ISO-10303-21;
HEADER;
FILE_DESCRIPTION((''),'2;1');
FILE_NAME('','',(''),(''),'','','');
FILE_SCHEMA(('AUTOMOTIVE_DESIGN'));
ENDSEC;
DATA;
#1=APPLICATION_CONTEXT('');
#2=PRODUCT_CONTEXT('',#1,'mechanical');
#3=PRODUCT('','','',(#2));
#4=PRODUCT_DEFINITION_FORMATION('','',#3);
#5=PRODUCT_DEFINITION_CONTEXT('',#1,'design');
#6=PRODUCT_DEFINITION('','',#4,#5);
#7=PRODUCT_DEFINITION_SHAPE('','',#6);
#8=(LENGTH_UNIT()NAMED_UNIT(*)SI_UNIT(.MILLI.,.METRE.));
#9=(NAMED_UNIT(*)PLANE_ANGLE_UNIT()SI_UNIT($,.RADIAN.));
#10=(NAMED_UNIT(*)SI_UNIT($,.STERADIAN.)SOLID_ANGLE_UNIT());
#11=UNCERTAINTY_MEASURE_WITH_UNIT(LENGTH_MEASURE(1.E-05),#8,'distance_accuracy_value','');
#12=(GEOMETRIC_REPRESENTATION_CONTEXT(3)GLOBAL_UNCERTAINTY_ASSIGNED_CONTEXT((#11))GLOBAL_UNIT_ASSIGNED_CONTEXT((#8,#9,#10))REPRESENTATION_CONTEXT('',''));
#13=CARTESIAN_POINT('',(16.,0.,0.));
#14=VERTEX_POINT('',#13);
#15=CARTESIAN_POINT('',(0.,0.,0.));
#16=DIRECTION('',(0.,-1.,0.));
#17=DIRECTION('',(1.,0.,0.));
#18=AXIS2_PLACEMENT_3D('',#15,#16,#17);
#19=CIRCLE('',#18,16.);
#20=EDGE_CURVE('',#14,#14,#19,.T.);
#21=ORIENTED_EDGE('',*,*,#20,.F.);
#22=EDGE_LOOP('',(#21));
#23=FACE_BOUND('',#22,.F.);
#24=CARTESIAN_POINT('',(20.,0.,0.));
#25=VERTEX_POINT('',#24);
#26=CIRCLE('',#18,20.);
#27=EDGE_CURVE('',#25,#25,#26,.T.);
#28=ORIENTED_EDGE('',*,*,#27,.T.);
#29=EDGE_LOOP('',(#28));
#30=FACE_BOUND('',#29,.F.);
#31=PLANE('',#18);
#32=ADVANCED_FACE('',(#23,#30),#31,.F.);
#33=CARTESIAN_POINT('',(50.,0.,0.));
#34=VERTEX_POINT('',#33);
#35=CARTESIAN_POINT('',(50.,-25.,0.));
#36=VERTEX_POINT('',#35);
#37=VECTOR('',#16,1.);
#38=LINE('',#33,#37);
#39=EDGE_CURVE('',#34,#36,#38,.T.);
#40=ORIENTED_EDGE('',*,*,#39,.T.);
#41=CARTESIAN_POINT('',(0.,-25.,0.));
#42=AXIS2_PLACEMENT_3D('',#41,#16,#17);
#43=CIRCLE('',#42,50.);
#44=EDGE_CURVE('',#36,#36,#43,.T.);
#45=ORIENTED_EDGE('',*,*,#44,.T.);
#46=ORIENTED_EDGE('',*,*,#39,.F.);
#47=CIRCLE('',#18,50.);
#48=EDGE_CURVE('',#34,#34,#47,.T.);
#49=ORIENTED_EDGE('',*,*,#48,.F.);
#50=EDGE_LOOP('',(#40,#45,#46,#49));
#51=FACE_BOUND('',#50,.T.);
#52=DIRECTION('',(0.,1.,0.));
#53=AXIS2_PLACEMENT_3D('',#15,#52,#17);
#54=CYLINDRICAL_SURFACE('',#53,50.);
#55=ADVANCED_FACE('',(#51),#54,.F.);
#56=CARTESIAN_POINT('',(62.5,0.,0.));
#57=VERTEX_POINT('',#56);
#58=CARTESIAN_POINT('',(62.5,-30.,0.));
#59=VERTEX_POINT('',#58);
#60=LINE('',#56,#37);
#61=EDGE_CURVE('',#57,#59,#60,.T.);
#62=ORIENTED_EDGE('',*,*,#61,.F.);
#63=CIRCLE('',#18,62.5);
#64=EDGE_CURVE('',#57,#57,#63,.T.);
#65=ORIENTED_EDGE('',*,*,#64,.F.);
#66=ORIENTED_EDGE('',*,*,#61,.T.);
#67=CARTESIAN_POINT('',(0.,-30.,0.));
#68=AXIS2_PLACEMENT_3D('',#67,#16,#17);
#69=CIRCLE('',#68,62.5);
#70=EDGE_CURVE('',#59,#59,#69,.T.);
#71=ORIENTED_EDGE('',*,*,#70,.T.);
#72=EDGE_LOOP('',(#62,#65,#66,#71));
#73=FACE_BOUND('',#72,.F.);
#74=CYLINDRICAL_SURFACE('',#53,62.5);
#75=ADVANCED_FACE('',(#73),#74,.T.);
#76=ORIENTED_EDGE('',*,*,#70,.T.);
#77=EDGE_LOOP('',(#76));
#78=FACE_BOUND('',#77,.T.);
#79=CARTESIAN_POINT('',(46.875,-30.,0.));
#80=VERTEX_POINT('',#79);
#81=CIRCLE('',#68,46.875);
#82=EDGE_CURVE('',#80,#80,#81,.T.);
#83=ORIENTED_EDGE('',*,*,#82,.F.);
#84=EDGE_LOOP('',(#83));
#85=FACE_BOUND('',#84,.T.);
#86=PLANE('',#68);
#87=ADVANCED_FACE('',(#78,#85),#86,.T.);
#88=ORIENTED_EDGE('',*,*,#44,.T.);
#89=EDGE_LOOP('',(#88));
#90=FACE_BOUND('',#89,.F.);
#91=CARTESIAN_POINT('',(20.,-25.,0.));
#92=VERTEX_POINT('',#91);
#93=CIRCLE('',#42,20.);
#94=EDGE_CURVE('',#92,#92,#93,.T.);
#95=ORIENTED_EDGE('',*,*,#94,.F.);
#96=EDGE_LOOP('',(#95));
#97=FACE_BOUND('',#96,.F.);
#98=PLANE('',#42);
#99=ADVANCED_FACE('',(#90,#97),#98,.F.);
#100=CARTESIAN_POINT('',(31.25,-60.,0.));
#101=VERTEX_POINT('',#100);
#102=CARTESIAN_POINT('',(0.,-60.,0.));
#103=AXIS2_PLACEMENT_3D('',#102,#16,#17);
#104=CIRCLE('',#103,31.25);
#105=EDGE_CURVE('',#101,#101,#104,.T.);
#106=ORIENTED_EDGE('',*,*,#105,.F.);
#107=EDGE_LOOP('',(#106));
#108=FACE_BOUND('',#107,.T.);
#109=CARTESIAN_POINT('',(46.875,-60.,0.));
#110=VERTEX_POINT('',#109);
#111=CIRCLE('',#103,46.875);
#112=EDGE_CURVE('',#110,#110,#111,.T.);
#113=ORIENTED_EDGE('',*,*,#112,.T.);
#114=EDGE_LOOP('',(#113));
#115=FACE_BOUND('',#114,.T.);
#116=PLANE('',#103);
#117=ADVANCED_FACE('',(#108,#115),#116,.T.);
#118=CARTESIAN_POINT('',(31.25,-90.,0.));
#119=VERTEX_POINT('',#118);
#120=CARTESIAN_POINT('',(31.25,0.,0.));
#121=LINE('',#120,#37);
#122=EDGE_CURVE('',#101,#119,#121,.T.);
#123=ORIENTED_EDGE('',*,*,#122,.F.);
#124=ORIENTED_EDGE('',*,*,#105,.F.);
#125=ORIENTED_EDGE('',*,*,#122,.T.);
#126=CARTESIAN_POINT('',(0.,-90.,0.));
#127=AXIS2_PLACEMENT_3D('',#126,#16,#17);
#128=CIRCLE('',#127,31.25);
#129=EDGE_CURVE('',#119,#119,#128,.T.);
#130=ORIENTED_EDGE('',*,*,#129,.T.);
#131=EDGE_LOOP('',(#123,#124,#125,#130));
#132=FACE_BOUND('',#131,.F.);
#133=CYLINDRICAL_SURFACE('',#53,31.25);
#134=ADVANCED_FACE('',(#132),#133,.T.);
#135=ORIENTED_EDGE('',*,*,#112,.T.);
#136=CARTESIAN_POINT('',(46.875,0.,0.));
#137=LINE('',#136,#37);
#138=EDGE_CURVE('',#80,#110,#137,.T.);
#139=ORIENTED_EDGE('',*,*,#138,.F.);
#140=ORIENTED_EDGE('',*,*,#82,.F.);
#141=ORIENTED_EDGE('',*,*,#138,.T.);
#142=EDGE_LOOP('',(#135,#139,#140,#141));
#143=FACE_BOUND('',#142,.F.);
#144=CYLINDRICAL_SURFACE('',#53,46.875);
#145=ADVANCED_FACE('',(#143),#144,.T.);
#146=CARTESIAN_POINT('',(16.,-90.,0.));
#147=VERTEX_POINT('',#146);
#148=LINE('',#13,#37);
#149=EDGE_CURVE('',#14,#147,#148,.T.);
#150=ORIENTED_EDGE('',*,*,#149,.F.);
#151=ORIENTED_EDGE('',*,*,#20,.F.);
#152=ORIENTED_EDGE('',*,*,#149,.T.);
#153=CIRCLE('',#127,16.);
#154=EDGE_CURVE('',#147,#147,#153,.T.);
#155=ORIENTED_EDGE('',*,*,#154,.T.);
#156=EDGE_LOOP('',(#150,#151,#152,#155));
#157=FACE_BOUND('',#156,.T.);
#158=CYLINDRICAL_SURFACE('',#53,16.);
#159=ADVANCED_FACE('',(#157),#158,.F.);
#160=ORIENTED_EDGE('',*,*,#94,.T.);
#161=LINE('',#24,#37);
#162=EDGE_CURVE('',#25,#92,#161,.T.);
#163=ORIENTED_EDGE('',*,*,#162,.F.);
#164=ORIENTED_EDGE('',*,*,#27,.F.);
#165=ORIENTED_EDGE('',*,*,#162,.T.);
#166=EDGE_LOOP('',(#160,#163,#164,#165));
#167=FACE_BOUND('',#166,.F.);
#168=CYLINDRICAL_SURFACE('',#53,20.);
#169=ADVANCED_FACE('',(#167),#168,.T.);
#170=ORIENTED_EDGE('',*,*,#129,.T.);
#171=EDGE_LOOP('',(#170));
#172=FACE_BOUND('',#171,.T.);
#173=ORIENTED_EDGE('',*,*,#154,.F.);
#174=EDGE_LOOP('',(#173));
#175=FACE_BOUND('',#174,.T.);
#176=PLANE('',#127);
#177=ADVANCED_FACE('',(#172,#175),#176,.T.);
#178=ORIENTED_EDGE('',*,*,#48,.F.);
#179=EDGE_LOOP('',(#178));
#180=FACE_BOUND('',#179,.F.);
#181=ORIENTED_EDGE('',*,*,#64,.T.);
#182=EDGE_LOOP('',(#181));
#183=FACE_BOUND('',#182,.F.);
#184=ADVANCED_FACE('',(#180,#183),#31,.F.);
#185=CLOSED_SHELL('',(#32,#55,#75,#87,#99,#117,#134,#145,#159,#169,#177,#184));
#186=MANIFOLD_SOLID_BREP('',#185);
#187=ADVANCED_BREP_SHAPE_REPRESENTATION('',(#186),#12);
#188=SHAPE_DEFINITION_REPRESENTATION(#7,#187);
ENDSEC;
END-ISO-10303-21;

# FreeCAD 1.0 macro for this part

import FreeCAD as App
import Part
import Sketcher
from FreeCAD import Vector
Q = App.Units.Quantity

doc = App.newDocument("Part")
body = doc.addObject("PartDesign::Body", "Body")

# Sketch on XZ plane
sketch1 = body.newObject("Sketcher::SketchObject", "Sketch")
sketch1.AttachmentSupport = (doc.getObject("XZ_Plane"), [""])
sketch1.MapMode = "FlatFace"
sketch1.addGeometry(Part.Circle(Vector(0, 0, 0), Vector(0, 0, 1), 31), False)
sketch1.addGeometry(Part.Circle(Vector(0, 0, 0), Vector(0, 0, 1), 16), False)
sketch1.addConstraint(Sketcher.Constraint("Coincident", 0, 3, -1, 1))
sketch1.addConstraint(Sketcher.Constraint("Coincident", 1, 3, -1, 1))
sketch1.addConstraint(Sketcher.Constraint("Diameter", 1, Q("32 mm")))
sketch1.addConstraint(Sketcher.Constraint("Diameter", 0, Q("62.5 mm")))
pad1 = body.newObject("PartDesign::Pad", "Pad")
pad1.Profile = sketch1
pad1.Length = 90

# Sketch on XZ plane
sketch2 = body.newObject("Sketcher::SketchObject", "Sketch001")
sketch2.AttachmentSupport = (doc.getObject("XZ_Plane"), [""])
sketch2.MapMode = "FlatFace"
sketch2.addGeometry(Part.Circle(Vector(0, 0, 0), Vector(0, 0, 1), 47), False)
sketch2.addGeometry(Part.Circle(Vector(0, 0, 0), Vector(0, 0, 1), 31), False)
sketch2.addConstraint(Sketcher.Constraint("Coincident", 0, 3, -1, 1))
sketch2.addConstraint(Sketcher.Constraint("Coincident", 1, 3, -1, 1))
sketch2.addConstraint(Sketcher.Constraint("Diameter", 1, Q("62.5 mm")))
sketch2.addConstraint(Sketcher.Constraint("Diameter", 0, Q("93.75 mm")))
pad2 = body.newObject("PartDesign::Pad", "Pad001")
pad2.Profile = sketch2
pad2.Length = 60

# Sketch on XZ plane
sketch3 = body.newObject("Sketcher::SketchObject", "Sketch002")
sketch3.AttachmentSupport = (doc.getObject("XZ_Plane"), [""])
sketch3.MapMode = "FlatFace"
sketch3.addGeometry(Part.Circle(Vector(0, 0, 0), Vector(0, 0, 1), 62), False)
sketch3.addGeometry(Part.Circle(Vector(0, 0, 0), Vector(0, 0, 1), 47), False)
sketch3.addConstraint(Sketcher.Constraint("Coincident", 0, 3, -1, 1))
sketch3.addConstraint(Sketcher.Constraint("Coincident", 1, 3, -1, 1))
sketch3.addConstraint(Sketcher.Constraint("Diameter", 0, Q("125 mm")))
sketch3.addConstraint(Sketcher.Constraint("Diameter", 1, Q("93.75 mm")))
pad3 = body.newObject("PartDesign::Pad", "Pad002")
pad3.Profile = sketch3
pad3.Length = 30

# Sketch on XZ plane
sketch4 = body.newObject("Sketcher::SketchObject", "Sketch003")
sketch4.AttachmentSupport = (doc.getObject("XZ_Plane"), [""])
sketch4.MapMode = "FlatFace"
sketch4.addGeometry(Part.Circle(Vector(0, 0, 0), Vector(0, 0, 1), 50), False)
sketch4.addGeometry(Part.Circle(Vector(0, 0, 0), Vector(0, 0, 1), 20), False)
sketch4.addConstraint(Sketcher.Constraint("Coincident", 0, 3, -1, 1))
sketch4.addConstraint(Sketcher.Constraint("Coincident", 1, 3, -1, 1))
sketch4.addConstraint(Sketcher.Constraint("Diameter", 0, Q("100 mm")))
sketch4.addConstraint(Sketcher.Constraint("Diameter", 1, Q("40 mm")))
pocket1 = body.newObject("PartDesign::Pocket", "Pocket")
pocket1.Profile = sketch4
pocket1.Length = 25
pocket1.Reversed = True

doc.recompute()
